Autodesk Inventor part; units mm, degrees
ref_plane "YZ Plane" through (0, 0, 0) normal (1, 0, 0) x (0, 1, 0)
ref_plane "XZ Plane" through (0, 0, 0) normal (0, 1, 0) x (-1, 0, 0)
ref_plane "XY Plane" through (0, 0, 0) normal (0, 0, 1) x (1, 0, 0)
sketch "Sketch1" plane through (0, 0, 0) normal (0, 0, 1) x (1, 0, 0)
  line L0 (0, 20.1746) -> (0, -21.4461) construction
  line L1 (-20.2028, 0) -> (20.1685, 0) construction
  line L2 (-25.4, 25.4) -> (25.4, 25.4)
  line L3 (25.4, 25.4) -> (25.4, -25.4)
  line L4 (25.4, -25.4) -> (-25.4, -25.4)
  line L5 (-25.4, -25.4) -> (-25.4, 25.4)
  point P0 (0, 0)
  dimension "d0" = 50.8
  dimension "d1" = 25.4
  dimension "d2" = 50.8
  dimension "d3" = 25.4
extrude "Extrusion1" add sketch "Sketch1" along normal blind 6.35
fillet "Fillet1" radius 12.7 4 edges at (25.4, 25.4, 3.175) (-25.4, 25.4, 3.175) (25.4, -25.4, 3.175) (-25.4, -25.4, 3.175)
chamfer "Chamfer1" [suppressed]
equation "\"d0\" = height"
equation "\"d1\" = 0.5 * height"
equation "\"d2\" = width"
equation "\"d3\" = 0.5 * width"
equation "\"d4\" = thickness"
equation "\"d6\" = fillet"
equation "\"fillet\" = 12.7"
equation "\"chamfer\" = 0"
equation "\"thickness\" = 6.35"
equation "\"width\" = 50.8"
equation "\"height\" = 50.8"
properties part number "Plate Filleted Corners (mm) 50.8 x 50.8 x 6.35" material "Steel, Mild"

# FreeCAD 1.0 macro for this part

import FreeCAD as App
import Part
import Sketcher
from FreeCAD import Vector
Q = App.Units.Quantity


def edges_at(feature, points):
    """Names of the edges that pass closest to the given points."""
    edges = feature.Shape.Edges
    near = lambda p: min(range(len(edges)), key=lambda i: edges[i].distToShape(Part.Vertex(*p))[0])
    return sorted({f"Edge{near(p) + 1}" for p in points})

doc = App.newDocument("Part")
body = doc.addObject("PartDesign::Body", "Body")

# Sketch on XY plane
sketch1 = body.newObject("Sketcher::SketchObject", "Sketch")
sketch1.AttachmentSupport = (doc.getObject("XY_Plane"), [""])
sketch1.MapMode = "FlatFace"
sketch1.addGeometry([
    Part.LineSegment(Vector(25, 25, 0), Vector(-25, 25, 0)),
    Part.LineSegment(Vector(-25, 25, 0), Vector(-25, -25, 0)),
    Part.LineSegment(Vector(-25, -25, 0), Vector(25, -25, 0)),
    Part.LineSegment(Vector(25, -25, 0), Vector(25, 25, 0)),
], False)
sketch1.addConstraint([
    Sketcher.Constraint("Coincident", 0, 2, 1, 1),
    Sketcher.Constraint("Coincident", 1, 2, 2, 1),
    Sketcher.Constraint("Coincident", 2, 2, 3, 1),
    Sketcher.Constraint("Coincident", 3, 2, 0, 1),
    Sketcher.Constraint("Horizontal", 0),
    Sketcher.Constraint("Vertical", 1),
    Sketcher.Constraint("Horizontal", 2),
    Sketcher.Constraint("Vertical", 3),
    Sketcher.Constraint("Symmetric", 0, 2, 2, 2, -1, 1),
    Sketcher.Constraint("Equal", 2, 1),
    Sketcher.Constraint("DistanceX", 0, 2, 0, 1, Q("2 in")),
])
pad1 = body.newObject("PartDesign::Pad", "Pad")
pad1.Profile = sketch1
pad1.Length = Q("0.25 in")
doc.recompute()

fillet = body.newObject("PartDesign::Fillet", "Fillet")
fillet.Base = (pad1, edges_at(pad1, [
    (25.4, 25.4, 3.175),
    (-25.4, 25.4, 3.175),
    (25.4, -25.4, 3.175),
    (-25.4, -25.4, 3.175),
]))
fillet.Radius = Q("0.5 in")

doc.recompute()
